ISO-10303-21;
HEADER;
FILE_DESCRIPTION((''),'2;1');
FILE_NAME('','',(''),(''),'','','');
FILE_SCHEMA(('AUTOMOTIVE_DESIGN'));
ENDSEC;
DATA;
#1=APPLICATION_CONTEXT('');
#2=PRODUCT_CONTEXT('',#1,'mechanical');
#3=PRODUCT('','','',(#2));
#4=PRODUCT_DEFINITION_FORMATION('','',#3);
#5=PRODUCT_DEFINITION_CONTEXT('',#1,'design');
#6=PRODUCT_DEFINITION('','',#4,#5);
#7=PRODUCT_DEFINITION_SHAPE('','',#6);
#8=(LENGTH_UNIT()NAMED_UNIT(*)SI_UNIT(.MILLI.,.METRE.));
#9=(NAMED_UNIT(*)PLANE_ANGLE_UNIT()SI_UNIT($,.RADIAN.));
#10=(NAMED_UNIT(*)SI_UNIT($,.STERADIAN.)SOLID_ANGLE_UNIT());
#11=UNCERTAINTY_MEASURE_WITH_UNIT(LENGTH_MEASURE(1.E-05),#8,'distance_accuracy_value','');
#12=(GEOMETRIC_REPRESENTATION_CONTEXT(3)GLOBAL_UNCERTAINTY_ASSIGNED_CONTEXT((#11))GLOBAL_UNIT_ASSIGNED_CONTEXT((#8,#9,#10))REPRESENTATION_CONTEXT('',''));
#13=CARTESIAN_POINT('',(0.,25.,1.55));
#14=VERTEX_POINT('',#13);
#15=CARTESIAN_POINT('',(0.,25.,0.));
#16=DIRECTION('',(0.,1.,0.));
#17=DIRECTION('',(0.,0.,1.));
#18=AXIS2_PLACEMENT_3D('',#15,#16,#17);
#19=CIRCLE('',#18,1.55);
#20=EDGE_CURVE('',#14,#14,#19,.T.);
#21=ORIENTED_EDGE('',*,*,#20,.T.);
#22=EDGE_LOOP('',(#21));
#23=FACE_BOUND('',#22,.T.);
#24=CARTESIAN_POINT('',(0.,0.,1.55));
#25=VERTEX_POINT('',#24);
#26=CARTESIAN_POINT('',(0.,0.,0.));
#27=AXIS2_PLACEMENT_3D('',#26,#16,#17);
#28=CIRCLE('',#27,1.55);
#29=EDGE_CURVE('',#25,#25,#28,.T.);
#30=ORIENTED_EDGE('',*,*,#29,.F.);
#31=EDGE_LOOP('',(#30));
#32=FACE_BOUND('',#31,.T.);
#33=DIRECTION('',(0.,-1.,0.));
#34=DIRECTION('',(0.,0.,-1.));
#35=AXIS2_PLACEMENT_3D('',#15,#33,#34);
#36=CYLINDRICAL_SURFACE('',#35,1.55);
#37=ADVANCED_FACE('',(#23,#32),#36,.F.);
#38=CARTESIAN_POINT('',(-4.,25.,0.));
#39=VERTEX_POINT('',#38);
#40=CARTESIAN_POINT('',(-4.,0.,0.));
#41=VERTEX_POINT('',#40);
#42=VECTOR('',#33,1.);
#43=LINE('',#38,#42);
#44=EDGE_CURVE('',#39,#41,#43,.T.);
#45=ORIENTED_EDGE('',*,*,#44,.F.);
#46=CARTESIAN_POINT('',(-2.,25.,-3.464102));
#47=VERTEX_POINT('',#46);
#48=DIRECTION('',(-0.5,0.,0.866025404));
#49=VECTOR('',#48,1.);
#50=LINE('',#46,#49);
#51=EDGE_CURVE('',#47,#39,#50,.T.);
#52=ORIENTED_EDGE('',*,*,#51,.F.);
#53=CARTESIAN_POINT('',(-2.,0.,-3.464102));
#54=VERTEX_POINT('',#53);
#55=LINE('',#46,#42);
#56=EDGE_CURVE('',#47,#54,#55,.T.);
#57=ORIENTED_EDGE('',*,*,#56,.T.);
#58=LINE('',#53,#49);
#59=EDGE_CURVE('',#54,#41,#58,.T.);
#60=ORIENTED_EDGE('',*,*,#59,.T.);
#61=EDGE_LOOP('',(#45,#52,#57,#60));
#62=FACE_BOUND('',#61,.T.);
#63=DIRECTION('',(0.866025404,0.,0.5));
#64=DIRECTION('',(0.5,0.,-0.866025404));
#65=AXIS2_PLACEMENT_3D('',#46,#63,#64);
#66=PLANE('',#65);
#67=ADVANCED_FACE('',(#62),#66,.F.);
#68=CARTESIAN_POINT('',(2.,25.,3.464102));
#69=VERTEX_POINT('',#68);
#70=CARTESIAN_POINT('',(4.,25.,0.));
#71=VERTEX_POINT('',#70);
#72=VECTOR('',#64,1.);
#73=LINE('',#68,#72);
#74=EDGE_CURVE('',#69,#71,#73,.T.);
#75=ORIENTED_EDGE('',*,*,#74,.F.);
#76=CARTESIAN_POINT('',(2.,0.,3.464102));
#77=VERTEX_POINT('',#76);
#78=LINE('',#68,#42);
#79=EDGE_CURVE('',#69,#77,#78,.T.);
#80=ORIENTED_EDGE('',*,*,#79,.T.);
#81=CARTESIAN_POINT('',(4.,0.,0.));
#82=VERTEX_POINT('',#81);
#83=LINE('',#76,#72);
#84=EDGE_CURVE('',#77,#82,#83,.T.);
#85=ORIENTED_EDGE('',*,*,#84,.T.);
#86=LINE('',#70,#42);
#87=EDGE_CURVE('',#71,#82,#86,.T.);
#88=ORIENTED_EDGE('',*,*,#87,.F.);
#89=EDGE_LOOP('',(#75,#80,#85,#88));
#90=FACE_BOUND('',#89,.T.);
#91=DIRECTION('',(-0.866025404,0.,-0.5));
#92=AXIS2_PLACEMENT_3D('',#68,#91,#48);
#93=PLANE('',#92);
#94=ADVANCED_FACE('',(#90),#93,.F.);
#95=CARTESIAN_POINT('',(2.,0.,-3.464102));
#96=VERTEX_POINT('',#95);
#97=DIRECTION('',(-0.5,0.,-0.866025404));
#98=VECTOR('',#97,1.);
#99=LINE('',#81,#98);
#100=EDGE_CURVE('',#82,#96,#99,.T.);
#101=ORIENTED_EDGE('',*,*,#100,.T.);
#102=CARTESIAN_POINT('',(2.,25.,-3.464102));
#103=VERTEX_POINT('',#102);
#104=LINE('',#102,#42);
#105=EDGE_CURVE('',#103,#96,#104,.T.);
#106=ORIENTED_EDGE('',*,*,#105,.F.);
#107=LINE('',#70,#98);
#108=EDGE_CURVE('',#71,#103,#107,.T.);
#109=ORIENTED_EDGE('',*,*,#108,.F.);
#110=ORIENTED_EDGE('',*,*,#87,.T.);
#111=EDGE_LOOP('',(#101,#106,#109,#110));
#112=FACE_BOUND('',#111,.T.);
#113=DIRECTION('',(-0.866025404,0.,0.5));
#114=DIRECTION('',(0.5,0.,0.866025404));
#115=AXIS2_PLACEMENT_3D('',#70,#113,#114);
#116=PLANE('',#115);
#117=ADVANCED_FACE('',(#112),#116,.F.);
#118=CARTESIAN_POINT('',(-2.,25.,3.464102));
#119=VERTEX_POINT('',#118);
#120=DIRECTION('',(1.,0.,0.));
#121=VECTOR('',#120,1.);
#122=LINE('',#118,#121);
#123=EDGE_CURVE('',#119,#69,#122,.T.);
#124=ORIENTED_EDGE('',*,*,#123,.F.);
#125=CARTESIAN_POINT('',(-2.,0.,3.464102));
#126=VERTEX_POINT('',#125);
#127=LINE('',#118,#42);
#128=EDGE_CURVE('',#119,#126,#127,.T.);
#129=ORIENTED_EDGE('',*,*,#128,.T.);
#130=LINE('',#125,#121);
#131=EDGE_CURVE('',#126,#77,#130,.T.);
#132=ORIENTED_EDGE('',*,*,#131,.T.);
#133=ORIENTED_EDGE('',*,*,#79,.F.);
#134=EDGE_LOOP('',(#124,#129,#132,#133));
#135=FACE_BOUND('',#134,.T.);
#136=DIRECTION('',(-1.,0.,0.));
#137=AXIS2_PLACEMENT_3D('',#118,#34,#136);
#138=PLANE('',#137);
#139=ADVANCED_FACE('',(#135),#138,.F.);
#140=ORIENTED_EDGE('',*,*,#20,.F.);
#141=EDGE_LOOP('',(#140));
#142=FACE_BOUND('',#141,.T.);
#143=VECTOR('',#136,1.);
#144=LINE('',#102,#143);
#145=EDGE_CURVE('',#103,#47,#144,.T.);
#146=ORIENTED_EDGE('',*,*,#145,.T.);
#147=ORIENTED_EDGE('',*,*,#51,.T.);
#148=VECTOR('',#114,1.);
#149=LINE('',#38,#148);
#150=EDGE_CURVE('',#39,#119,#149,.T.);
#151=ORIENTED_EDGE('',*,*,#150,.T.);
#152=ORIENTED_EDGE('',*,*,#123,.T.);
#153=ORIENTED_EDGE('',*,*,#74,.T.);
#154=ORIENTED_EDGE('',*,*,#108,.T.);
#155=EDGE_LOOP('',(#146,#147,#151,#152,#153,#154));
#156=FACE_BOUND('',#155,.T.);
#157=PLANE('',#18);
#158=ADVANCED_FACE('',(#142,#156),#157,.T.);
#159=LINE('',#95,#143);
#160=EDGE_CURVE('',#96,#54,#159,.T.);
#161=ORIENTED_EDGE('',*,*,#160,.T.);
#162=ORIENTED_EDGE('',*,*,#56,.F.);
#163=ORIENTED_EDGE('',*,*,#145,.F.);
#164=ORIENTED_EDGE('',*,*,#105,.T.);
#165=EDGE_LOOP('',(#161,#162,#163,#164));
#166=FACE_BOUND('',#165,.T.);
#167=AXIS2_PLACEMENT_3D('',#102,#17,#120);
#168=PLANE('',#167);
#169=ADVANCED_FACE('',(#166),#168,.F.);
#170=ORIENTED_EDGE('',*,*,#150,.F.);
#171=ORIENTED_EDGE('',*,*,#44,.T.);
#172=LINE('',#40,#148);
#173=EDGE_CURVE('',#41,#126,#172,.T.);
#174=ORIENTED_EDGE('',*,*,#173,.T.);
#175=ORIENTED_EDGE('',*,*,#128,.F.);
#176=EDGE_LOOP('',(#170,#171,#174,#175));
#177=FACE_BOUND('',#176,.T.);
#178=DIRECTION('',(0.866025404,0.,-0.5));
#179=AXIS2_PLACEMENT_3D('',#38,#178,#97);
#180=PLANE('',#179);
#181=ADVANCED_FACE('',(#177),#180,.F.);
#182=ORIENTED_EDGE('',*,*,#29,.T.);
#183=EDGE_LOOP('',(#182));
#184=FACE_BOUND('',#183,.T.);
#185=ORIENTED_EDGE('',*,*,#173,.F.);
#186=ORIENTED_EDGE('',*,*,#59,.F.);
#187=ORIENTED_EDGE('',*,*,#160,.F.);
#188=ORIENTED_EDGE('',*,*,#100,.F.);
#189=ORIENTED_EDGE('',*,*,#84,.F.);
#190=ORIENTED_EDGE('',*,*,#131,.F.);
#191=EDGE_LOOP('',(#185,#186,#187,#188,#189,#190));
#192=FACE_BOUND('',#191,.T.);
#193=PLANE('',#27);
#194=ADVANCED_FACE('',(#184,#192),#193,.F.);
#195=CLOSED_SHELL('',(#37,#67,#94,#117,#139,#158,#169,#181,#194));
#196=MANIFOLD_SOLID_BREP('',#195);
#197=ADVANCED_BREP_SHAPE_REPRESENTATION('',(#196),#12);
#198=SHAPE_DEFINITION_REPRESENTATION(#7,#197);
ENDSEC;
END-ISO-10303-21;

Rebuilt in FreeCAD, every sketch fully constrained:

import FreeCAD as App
import Part
import Sketcher
Q = App.Units.Quantity


def add_polygon(sketch, points):
    """Adds a closed chain of lines whose ends are joined by coincident constraints."""
    first, n = sketch.GeometryCount, len(points)
    for a, b in zip(points, points[1:] + points[:1]):
        sketch.addGeometry(Part.LineSegment(App.Vector(*a, 0), App.Vector(*b, 0)), False)
    for i in range(n):
        sketch.addConstraint(Sketcher.Constraint("Coincident", first + i, 2, first + (i + 1) % n, 1))

doc = App.newDocument("Part")
body = doc.addObject("PartDesign::Body", "Body")

# Sketch on XZ plane
sketch1 = doc.addObject("Sketcher::SketchObject", "Sketch")
body.addObject(sketch1)
sketch1.AttachmentSupport = (doc.XZ_Plane, [""])
sketch1.MapMode = "FlatFace"
add_polygon(sketch1, [(2, -3.464102), (-2, -3.464102), (-4, 0), (-2, 3.464102), (2, 3.464102), (4, 0)])  # lines 0-5
sketch1.addGeometry(Part.Circle(App.Vector(0, 0, 0), App.Vector(0, 0, 1), 1.55), False)  # 6
sketch1.addConstraint([
    Sketcher.Constraint("Horizontal", 0),
    Sketcher.Constraint("Horizontal", 3),
    Sketcher.Constraint("Coincident", 6, 3, -1, 1),
    Sketcher.Constraint("Symmetric", 0, 2, 3, 2, -1, 1),
    Sketcher.Constraint("Symmetric", 1, 2, 4, 2, -1, 1),
    Sketcher.Constraint("PointOnObject", 1, 2, -1),
    Sketcher.Constraint("Parallel", 2, 5),
    Sketcher.Constraint("Vertical", 0, 2, 2, 2),
    Sketcher.Constraint("Diameter", 6, Q("3.1 mm")),
    Sketcher.Constraint("DistanceX", 0, 2, 0, 1, Q("4 mm")),
    Sketcher.Constraint("Angle", 1, Q("120 deg")),
    Sketcher.Constraint("Distance", 1, Q("4 mm")),
])
pad1 = doc.addObject("PartDesign::Pad", "Pad")
body.addObject(pad1)
pad1.Profile = sketch1
pad1.Length = 25
pad1.Reversed = True

doc.recompute()
